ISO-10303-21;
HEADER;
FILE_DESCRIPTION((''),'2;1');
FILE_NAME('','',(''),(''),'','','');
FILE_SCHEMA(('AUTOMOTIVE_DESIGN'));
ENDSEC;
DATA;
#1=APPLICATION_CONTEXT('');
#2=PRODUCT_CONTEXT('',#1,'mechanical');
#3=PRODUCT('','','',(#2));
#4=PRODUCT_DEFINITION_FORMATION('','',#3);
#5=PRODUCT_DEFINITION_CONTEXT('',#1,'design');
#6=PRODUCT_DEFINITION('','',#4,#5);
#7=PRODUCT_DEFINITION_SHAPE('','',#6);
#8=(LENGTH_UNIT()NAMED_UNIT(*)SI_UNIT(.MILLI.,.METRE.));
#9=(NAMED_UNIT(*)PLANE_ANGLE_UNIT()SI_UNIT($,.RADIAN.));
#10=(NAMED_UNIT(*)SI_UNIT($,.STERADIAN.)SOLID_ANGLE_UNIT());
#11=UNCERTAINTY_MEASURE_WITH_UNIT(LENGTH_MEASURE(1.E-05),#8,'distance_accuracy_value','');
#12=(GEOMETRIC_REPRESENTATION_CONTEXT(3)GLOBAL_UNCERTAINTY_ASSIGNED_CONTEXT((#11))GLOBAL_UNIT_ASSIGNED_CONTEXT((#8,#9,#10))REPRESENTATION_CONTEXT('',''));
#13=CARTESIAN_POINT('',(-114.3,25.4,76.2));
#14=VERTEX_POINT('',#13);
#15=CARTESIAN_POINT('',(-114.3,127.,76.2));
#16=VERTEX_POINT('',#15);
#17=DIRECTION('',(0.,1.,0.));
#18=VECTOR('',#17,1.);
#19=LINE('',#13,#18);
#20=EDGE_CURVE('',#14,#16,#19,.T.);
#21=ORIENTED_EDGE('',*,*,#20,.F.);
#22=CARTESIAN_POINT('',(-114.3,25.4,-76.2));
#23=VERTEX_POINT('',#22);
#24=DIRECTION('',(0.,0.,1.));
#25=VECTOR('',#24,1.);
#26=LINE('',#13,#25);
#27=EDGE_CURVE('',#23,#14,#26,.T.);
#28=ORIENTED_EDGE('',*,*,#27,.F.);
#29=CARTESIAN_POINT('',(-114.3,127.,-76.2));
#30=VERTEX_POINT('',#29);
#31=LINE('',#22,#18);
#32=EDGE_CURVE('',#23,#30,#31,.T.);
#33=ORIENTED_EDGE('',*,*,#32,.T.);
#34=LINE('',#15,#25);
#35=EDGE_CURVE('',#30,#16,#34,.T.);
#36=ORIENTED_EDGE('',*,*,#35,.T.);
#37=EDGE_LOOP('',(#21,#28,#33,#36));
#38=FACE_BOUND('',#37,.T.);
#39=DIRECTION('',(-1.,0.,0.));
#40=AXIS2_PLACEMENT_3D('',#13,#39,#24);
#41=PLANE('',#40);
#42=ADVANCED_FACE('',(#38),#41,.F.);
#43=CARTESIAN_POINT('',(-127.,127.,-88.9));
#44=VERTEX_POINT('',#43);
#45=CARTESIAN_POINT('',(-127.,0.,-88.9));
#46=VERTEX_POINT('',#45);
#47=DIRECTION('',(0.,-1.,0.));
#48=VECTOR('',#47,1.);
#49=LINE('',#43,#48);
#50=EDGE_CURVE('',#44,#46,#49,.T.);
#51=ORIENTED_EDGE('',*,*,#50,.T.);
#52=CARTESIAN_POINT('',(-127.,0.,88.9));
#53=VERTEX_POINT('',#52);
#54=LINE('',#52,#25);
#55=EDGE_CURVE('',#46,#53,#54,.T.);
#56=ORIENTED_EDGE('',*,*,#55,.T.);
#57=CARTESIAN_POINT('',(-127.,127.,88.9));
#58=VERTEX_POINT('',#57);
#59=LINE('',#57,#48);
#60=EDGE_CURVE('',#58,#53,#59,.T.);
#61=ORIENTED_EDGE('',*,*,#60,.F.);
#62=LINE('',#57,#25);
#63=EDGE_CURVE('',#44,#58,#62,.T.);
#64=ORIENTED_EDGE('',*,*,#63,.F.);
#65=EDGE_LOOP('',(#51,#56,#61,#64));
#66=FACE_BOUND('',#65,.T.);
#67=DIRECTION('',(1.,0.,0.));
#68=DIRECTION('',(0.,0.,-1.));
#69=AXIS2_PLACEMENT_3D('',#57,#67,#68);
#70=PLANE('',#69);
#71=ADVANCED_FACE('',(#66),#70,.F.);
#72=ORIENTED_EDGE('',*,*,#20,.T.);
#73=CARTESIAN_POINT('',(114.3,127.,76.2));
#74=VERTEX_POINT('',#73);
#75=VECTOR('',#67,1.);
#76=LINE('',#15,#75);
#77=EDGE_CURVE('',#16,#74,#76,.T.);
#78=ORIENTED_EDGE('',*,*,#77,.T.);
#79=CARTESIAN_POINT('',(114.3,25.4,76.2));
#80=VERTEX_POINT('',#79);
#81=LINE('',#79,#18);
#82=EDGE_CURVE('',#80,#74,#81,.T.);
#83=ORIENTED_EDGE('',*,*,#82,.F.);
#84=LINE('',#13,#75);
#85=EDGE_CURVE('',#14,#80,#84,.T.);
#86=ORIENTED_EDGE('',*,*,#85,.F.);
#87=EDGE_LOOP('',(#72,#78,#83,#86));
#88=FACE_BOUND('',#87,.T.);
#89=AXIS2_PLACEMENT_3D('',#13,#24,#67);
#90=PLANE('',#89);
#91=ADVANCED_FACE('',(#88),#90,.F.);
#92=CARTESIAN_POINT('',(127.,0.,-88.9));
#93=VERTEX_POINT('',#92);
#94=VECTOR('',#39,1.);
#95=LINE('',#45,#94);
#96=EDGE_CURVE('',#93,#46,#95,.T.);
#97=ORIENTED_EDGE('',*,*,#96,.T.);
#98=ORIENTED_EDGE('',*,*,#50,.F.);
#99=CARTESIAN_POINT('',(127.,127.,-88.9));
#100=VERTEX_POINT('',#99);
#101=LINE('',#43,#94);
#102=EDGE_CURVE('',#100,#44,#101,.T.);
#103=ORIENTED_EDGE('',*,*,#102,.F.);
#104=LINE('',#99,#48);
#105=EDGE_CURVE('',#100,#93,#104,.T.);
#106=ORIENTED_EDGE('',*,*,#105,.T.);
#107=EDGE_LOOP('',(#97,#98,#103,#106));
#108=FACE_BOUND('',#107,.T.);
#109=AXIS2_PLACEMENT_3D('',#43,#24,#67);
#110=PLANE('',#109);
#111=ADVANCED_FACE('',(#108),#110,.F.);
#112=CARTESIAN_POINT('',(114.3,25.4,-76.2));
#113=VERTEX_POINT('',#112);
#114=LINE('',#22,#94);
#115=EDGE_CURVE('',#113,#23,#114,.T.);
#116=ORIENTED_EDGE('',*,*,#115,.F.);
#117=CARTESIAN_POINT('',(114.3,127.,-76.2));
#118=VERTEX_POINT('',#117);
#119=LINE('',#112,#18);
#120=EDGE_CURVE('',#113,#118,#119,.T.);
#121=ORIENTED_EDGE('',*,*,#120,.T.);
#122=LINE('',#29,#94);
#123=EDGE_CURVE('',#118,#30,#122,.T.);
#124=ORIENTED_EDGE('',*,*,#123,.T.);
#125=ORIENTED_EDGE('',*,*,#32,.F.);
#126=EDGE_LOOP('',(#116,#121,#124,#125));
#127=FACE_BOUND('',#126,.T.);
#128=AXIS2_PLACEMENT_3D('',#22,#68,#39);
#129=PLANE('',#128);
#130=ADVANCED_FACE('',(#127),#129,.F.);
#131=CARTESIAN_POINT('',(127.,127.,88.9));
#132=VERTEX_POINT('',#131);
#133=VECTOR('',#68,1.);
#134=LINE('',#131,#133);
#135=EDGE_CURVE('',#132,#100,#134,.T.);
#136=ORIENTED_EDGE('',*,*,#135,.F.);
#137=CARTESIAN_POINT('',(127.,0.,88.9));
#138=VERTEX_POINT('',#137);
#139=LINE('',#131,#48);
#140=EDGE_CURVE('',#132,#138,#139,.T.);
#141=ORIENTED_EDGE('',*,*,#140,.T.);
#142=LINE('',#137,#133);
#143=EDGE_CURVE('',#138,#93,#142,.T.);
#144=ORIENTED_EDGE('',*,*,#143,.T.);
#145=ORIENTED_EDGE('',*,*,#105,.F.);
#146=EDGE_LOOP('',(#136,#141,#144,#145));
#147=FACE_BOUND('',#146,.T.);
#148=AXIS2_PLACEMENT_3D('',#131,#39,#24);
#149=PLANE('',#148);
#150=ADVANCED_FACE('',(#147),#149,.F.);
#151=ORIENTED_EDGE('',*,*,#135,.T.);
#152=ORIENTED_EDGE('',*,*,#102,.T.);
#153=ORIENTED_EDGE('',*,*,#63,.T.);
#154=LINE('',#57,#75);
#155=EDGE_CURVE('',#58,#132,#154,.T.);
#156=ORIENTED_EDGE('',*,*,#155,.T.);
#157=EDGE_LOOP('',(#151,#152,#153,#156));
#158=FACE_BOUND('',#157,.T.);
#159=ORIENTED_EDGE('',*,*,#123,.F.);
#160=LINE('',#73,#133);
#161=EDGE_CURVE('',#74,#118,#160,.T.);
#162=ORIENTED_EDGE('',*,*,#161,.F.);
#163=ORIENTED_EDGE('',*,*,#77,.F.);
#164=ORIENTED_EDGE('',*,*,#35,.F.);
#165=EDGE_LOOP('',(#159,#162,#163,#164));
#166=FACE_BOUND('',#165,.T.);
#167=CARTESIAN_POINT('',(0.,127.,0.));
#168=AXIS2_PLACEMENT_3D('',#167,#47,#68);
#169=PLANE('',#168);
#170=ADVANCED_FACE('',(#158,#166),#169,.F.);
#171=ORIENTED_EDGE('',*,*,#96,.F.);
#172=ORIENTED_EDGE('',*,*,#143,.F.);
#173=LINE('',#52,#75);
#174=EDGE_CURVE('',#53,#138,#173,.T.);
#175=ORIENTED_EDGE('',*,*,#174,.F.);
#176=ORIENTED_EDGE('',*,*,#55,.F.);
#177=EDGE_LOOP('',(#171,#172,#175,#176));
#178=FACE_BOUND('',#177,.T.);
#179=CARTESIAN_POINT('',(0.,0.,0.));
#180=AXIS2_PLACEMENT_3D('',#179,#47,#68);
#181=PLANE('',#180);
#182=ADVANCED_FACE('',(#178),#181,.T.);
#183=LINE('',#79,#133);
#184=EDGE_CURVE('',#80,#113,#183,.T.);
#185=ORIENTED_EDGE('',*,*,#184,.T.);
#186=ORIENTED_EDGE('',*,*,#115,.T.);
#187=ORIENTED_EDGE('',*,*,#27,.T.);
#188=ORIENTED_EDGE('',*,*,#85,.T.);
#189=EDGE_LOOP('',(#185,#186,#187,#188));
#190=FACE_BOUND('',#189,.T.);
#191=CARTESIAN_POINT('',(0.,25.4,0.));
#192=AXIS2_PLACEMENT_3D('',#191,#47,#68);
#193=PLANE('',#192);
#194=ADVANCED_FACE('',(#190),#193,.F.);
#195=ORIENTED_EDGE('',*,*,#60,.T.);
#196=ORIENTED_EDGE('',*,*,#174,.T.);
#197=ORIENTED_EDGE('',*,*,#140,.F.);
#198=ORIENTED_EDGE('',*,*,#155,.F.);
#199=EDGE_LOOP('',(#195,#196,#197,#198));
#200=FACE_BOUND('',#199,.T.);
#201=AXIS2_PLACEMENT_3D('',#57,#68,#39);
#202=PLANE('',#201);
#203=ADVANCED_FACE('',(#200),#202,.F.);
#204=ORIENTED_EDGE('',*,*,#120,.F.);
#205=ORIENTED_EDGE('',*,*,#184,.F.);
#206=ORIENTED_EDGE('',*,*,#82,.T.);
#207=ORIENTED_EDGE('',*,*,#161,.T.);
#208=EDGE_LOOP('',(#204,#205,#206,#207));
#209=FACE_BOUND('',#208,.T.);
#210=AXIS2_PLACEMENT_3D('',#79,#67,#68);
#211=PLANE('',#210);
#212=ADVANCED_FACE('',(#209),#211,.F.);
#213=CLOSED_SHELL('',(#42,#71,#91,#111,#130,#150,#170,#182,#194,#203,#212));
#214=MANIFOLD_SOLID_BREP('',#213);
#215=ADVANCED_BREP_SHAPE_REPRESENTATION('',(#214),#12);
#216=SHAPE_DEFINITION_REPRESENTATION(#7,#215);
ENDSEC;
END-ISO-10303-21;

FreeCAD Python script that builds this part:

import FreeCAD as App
import Part
import Sketcher
from FreeCAD import Vector
Q = App.Units.Quantity

doc = App.newDocument("Part")
body = doc.addObject("PartDesign::Body", "Body")

# Sketch on XZ plane
sketch1 = body.newObject("Sketcher::SketchObject", "Sketch")
sketch1.AttachmentSupport = (doc.getObject("XZ_Plane"), [""])
sketch1.MapMode = "FlatFace"
sketch1.addGeometry(Part.LineSegment(Vector(-127, -89, 0), Vector(-127, 89, 0)), False)
sketch1.addGeometry(Part.LineSegment(Vector(-127, 89, 0), Vector(127, 89, 0)), False)
sketch1.addGeometry(Part.LineSegment(Vector(127, 89, 0), Vector(127, -89, 0)), False)
sketch1.addGeometry(Part.LineSegment(Vector(127, -89, 0), Vector(-127, -89, 0)), False)
sketch1.addConstraint(Sketcher.Constraint("Coincident", 0, 2, 1, 1))
sketch1.addConstraint(Sketcher.Constraint("Coincident", 1, 2, 2, 1))
sketch1.addConstraint(Sketcher.Constraint("Coincident", 2, 2, 3, 1))
sketch1.addConstraint(Sketcher.Constraint("Coincident", 3, 2, 0, 1))
sketch1.addConstraint(Sketcher.Constraint("Vertical", 0))
sketch1.addConstraint(Sketcher.Constraint("Horizontal", 1))
sketch1.addConstraint(Sketcher.Constraint("Vertical", 2))
sketch1.addConstraint(Sketcher.Constraint("Horizontal", 3))
sketch1.addConstraint(Sketcher.Constraint("Symmetric", 0, 2, 2, 2, -1, 1))
sketch1.addConstraint(Sketcher.Constraint("DistanceX", 1, 1, 1, 2, Q("10 in")))
sketch1.addConstraint(Sketcher.Constraint("DistanceY", 0, 1, 0, 2, Q("7 in")))
pad1 = body.newObject("PartDesign::Pad", "Pad")
pad1.Profile = sketch1
pad1.Length = Q("5 in")
pad1.Reversed = True

# Sketch on XZ plane
sketch2 = body.newObject("Sketcher::SketchObject", "Sketch001")
sketch2.AttachmentSupport = (doc.getObject("XZ_Plane"), [""])
sketch2.MapMode = "FlatFace"
sketch2.AttachmentOffset = App.Placement(Vector(0, 0, -5 * 25.4), App.Rotation())
sketch2.addGeometry(Part.LineSegment(Vector(-114, -76, 0), Vector(-114, 76, 0)), False)
sketch2.addGeometry(Part.LineSegment(Vector(-114, 76, 0), Vector(114, 76, 0)), False)
sketch2.addGeometry(Part.LineSegment(Vector(114, 76, 0), Vector(114, -76, 0)), False)
sketch2.addGeometry(Part.LineSegment(Vector(114, -76, 0), Vector(-114, -76, 0)), False)
sketch2.addConstraint(Sketcher.Constraint("Coincident", 0, 2, 1, 1))
sketch2.addConstraint(Sketcher.Constraint("Coincident", 1, 2, 2, 1))
sketch2.addConstraint(Sketcher.Constraint("Coincident", 2, 2, 3, 1))
sketch2.addConstraint(Sketcher.Constraint("Coincident", 3, 2, 0, 1))
sketch2.addConstraint(Sketcher.Constraint("Vertical", 0))
sketch2.addConstraint(Sketcher.Constraint("Horizontal", 1))
sketch2.addConstraint(Sketcher.Constraint("Vertical", 2))
sketch2.addConstraint(Sketcher.Constraint("Horizontal", 3))
sketch2.addConstraint(Sketcher.Constraint("Symmetric", 0, 2, 2, 2, -1, 1))
sketch2.addConstraint(Sketcher.Constraint("DistanceX", 1, 1, 1, 2, Q("9 in")))
sketch2.addConstraint(Sketcher.Constraint("DistanceY", 0, 1, 0, 2, Q("6 in")))
pocket1 = body.newObject("PartDesign::Pocket", "Pocket")
pocket1.Profile = sketch2
pocket1.Length = Q("4 in")
pocket1.Reversed = True

doc.recompute()
